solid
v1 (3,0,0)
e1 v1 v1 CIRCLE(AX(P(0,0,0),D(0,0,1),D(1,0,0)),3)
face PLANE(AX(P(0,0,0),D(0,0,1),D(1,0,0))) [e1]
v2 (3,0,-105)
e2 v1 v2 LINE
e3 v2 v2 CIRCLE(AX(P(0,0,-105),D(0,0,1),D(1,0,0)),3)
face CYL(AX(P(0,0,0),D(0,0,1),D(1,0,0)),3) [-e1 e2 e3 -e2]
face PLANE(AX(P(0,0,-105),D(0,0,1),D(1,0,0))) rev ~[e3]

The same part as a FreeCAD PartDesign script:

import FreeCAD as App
import Part
import Sketcher

V = App.Vector

doc = App.newDocument("Part")
body = doc.addObject("PartDesign::Body", "Body")

# Sketch on XY plane
sketch1 = body.newObject("Sketcher::SketchObject", "Sketch")
sketch1.AttachmentSupport = (doc.getObject("XY_Plane"), [""])
sketch1.MapMode = "FlatFace"
sketch1.addGeometry(Part.Circle(V(0, 0, 0), V(0, 0, 1), 3), False)
sketch1.addConstraint(Sketcher.Constraint("Coincident", 0, 3, -1, 1))
sketch1.addConstraint(Sketcher.Constraint("Diameter", 0, 6.0))
pad1 = body.newObject("PartDesign::Pad", "Pad")
pad1.Profile = sketch1
pad1.Length = 105
pad1.Reversed = True

doc.recompute()
